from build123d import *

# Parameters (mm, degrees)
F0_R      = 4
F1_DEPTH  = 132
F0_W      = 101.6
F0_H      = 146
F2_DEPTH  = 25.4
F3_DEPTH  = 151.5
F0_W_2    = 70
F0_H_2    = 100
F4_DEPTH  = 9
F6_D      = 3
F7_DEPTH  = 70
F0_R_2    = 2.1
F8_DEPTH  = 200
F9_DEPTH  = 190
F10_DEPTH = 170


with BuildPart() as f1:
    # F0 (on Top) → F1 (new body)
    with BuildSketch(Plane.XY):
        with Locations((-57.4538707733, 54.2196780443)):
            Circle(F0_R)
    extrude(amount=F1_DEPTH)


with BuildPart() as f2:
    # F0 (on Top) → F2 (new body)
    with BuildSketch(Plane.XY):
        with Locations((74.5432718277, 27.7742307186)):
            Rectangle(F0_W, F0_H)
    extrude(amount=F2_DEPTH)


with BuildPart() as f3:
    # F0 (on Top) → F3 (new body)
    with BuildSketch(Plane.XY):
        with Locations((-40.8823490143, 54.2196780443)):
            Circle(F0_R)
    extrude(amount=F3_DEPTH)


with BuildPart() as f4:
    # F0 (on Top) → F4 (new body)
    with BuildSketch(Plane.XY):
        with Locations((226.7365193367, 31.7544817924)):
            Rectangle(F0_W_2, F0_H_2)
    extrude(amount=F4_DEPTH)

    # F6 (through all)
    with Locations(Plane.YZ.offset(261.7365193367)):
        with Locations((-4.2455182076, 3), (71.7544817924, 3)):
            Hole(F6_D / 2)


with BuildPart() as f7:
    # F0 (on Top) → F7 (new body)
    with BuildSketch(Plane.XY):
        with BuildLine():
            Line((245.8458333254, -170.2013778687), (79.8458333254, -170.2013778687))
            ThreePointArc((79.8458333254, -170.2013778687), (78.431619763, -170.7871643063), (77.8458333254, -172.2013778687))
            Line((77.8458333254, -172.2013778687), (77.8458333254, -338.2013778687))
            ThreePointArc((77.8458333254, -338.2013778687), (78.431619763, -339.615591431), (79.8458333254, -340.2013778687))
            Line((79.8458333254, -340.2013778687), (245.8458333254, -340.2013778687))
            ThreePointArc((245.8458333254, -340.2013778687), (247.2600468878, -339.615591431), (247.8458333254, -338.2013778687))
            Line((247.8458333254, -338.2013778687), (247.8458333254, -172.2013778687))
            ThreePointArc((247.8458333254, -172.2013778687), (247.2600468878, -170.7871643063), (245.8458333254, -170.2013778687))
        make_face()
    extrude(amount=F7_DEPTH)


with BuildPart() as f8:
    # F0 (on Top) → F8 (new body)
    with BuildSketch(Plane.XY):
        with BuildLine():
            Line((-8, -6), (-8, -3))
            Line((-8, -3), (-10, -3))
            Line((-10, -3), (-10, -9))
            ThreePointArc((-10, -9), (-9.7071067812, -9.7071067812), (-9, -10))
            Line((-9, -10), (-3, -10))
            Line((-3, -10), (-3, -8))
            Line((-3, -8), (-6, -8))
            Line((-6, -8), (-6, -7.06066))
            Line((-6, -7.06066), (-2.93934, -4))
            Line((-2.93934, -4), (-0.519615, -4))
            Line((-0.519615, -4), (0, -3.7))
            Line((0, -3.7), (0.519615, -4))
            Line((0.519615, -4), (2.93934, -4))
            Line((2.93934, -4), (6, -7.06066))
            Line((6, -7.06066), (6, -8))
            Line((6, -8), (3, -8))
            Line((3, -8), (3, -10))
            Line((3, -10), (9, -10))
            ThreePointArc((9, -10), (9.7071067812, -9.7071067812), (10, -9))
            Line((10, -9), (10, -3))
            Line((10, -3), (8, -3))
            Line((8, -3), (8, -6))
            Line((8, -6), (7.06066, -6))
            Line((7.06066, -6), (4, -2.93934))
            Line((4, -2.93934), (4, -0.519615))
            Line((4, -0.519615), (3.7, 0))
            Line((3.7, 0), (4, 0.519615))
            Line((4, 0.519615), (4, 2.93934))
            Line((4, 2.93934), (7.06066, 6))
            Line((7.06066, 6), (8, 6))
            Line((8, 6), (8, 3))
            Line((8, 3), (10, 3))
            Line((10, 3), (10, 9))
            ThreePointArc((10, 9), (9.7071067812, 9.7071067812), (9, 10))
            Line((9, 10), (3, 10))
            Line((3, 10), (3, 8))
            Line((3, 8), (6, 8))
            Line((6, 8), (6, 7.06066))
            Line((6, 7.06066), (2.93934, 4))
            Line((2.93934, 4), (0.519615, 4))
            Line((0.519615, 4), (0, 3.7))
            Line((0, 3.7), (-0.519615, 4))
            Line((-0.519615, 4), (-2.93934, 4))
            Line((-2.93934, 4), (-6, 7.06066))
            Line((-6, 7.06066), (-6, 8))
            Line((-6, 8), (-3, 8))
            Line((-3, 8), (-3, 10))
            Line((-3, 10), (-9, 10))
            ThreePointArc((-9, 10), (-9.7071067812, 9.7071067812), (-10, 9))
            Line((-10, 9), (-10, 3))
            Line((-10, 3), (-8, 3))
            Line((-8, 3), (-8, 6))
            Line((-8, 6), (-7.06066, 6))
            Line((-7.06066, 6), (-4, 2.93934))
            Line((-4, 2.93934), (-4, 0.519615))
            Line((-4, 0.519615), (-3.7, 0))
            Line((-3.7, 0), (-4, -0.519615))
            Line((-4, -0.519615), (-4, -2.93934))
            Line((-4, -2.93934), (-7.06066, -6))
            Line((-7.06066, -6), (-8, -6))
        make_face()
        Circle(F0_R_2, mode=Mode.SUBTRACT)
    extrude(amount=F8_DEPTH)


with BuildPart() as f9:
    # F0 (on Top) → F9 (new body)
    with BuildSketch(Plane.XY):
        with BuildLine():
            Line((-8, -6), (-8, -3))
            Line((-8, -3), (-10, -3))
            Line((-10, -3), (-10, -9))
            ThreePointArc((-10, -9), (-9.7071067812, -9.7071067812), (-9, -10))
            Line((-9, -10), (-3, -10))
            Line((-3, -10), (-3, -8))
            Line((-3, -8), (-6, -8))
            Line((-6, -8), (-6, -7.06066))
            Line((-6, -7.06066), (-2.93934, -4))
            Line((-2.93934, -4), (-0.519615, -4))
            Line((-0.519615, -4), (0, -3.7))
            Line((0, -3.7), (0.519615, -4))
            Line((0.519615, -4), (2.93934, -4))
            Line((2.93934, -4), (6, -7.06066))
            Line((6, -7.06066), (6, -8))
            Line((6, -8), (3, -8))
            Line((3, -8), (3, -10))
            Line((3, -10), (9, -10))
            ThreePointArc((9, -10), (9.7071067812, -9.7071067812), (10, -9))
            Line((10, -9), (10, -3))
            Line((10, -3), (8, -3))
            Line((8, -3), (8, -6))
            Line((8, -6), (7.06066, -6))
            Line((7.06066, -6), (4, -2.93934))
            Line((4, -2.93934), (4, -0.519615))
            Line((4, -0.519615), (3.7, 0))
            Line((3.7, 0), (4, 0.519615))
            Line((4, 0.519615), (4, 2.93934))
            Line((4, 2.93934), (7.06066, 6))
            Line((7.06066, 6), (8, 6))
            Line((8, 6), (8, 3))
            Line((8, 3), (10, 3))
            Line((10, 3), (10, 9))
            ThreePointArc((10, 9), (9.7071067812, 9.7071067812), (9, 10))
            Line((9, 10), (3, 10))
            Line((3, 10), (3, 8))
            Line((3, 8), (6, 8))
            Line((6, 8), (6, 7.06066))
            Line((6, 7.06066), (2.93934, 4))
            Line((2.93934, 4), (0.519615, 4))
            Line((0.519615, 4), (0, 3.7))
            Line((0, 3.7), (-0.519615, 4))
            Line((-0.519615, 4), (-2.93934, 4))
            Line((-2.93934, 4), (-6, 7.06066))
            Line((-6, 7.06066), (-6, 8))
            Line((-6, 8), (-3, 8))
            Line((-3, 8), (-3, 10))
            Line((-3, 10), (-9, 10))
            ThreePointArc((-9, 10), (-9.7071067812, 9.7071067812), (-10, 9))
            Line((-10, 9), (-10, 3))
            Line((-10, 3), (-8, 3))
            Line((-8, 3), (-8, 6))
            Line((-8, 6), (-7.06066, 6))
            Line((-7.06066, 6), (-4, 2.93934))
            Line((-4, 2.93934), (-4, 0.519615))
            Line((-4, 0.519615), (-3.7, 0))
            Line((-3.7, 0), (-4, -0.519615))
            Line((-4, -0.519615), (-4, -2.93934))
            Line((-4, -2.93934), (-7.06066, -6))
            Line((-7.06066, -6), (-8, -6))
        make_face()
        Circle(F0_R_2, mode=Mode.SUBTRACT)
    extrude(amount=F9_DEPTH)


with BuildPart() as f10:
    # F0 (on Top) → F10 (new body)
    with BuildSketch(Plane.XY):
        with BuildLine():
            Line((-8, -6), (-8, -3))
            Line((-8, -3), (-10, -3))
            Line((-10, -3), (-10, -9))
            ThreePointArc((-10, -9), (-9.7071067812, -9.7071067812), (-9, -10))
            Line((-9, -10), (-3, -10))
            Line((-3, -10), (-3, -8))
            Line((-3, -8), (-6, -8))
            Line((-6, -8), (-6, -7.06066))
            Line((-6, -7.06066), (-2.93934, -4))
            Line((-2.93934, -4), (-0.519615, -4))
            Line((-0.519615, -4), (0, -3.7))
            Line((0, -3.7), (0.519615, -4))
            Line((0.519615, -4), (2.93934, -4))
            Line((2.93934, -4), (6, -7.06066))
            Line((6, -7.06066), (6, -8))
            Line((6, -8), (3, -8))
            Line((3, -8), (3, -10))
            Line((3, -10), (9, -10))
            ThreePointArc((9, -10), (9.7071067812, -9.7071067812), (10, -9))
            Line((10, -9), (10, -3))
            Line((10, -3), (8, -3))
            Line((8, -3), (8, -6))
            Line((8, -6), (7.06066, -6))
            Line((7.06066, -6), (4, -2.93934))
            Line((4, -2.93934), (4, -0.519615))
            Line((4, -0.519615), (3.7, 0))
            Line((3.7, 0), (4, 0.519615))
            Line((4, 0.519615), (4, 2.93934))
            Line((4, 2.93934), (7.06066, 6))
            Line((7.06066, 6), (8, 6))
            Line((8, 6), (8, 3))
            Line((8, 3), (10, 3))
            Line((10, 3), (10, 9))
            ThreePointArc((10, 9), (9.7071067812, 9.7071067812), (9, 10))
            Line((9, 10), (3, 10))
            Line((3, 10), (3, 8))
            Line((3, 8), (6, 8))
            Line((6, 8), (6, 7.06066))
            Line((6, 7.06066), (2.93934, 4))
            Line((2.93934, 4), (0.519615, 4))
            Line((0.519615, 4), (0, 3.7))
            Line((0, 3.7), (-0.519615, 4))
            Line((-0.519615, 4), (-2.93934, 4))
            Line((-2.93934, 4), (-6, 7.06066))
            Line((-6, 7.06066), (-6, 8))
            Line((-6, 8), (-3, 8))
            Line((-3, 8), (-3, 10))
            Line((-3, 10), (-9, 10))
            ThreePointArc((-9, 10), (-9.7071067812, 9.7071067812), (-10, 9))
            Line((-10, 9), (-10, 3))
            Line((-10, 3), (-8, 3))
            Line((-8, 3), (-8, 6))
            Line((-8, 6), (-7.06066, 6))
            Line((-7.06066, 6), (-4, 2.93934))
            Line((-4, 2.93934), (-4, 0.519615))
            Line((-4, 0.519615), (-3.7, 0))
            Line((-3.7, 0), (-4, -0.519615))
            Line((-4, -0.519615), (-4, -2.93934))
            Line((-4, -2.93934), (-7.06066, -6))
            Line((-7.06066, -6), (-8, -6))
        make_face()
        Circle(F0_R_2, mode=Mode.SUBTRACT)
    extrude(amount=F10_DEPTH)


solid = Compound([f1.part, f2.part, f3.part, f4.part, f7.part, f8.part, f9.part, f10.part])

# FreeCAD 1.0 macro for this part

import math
import FreeCAD as App
import Part
import Sketcher

V = App.Vector
Q = App.Units.Quantity

doc = App.newDocument("Part")
body = doc.addObject("PartDesign::Body", "Body")

sketch1 = body.newObject("Sketcher::SketchObject", "Sketch")
sketch1.AttachmentSupport = (doc.getObject("XY_Plane"), [""])
sketch1.MapMode = "FlatFace"
sketch1.addGeometry(Part.Circle(V(-57.453871, 54.219678, 0), V(0, 0, 1), 4), False)
sketch1.addConstraint([
    Sketcher.Constraint("Diameter", 0, 8.0),
    Sketcher.Constraint("DistanceX", 0, 3, -1, 1, 57.453871),
    Sketcher.Constraint("DistanceY", -1, 1, 0, 3, 54.219678),
])
pad1 = body.newObject("PartDesign::Pad", "Pad")
pad1.Profile = sketch1
pad1.Length = 132
body2 = doc.addObject("PartDesign::Body", "Body001")

sketch2 = body2.newObject("Sketcher::SketchObject", "Sketch001")
sketch2.AttachmentSupport = (doc.getObject("XY_Plane001"), [""])
sketch2.MapMode = "FlatFace"
sketch2.addGeometry([
    Part.LineSegment(V(23.743272, 100.774231, 0), V(23.743272, -45.225769, 0)),
    Part.LineSegment(V(23.743272, -45.225769, 0), V(125.343272, -45.225769, 0)),
    Part.LineSegment(V(125.343272, -45.225769, 0), V(125.343272, 100.774231, 0)),
    Part.LineSegment(V(125.343272, 100.774231, 0), V(23.743272, 100.774231, 0)),
], False)
sketch2.addConstraint([
    Sketcher.Constraint("Coincident", 0, 2, 1, 1),
    Sketcher.Constraint("Coincident", 1, 2, 2, 1),
    Sketcher.Constraint("Coincident", 2, 2, 3, 1),
    Sketcher.Constraint("Coincident", 3, 2, 0, 1),
    Sketcher.Constraint("Vertical", 0),
    Sketcher.Constraint("Horizontal", 1),
    Sketcher.Constraint("Vertical", 2),
    Sketcher.Constraint("Horizontal", 3),
    Sketcher.Constraint("DistanceY", 0, 2, 0, 1, 146.0),
    Sketcher.Constraint("DistanceX", 1, 1, 1, 2, 101.6),
    Sketcher.Constraint("DistanceX", -1, 1, 0, 2, 23.743272),
    Sketcher.Constraint("DistanceY", 0, 2, -1, 1, 45.225769),
])
pad2 = body2.newObject("PartDesign::Pad", "Pad001")
pad2.Profile = sketch2
pad2.Length = 25.4
body3 = doc.addObject("PartDesign::Body", "Body002")

sketch3 = body3.newObject("Sketcher::SketchObject", "Sketch002")
sketch3.AttachmentSupport = (doc.getObject("XY_Plane002"), [""])
sketch3.MapMode = "FlatFace"
sketch3.addGeometry(Part.Circle(V(-40.882349, 54.219678, 0), V(0, 0, 1), 4), False)
sketch3.addConstraint([
    Sketcher.Constraint("Diameter", 0, 8.0),
    Sketcher.Constraint("DistanceX", 0, 3, -1, 1, 40.882349),
    Sketcher.Constraint("DistanceY", -1, 1, 0, 3, 54.219678),
])
pad3 = body3.newObject("PartDesign::Pad", "Pad002")
pad3.Profile = sketch3
pad3.Length = 151.5
body4 = doc.addObject("PartDesign::Body", "Body003")

sketch4 = body4.newObject("Sketcher::SketchObject", "Sketch003")
sketch4.AttachmentSupport = (doc.getObject("XY_Plane003"), [""])
sketch4.MapMode = "FlatFace"
sketch4.addGeometry([
    Part.LineSegment(V(191.736519, 81.754482, 0), V(191.736519, -18.245518, 0)),
    Part.LineSegment(V(191.736519, -18.245518, 0), V(261.736519, -18.245518, 0)),
    Part.LineSegment(V(261.736519, -18.245518, 0), V(261.736519, 81.754482, 0)),
    Part.LineSegment(V(261.736519, 81.754482, 0), V(191.736519, 81.754482, 0)),
], False)
sketch4.addConstraint([
    Sketcher.Constraint("Coincident", 0, 2, 1, 1),
    Sketcher.Constraint("Coincident", 1, 2, 2, 1),
    Sketcher.Constraint("Coincident", 2, 2, 3, 1),
    Sketcher.Constraint("Coincident", 3, 2, 0, 1),
    Sketcher.Constraint("Vertical", 0),
    Sketcher.Constraint("Horizontal", 1),
    Sketcher.Constraint("Vertical", 2),
    Sketcher.Constraint("Horizontal", 3),
    Sketcher.Constraint("DistanceX", 1, 1, 1, 2, 70.0),
    Sketcher.Constraint("DistanceY", 0, 2, 0, 1, 100.0),
    Sketcher.Constraint("DistanceX", -1, 1, 0, 2, 191.736519),
    Sketcher.Constraint("DistanceY", 0, 2, -1, 1, 18.245518),
])
pad4 = body4.newObject("PartDesign::Pad", "Pad003")
pad4.Profile = sketch4
pad4.Length = 9

sketch5 = body4.newObject("Sketcher::SketchObject", "Sketch004")
sketch5.AttachmentSupport = (doc.getObject("YZ_Plane003"), [""])
sketch5.MapMode = "FlatFace"
sketch5.AttachmentOffset = App.Placement(V(0, 0, 261.736519), App.Rotation())
sketch5.addGeometry([
    Part.Circle(V(-4.245518, 3, 0), V(0, 0, 1), 1.5),
    Part.Circle(V(71.754482, 3, 0), V(0, 0, 1), 1.5),
], False)
sketch5.addConstraint([
    Sketcher.Constraint("Equal", 0, 1),
    Sketcher.Constraint("Horizontal", 0, 3, 1, 3),
    Sketcher.Constraint("Diameter", 0, 3.0),
    Sketcher.Constraint("DistanceY", -1, 1, 0, 3, 3.0),
    Sketcher.Constraint("DistanceX", 0, 3, 1, 3, 76.0),
    Sketcher.Constraint("DistanceX", 0, 3, -1, 1, 4.245518),
])
doc.recompute()
hole = body4.newObject("PartDesign::Hole", "Hole")
hole.Profile = sketch5
hole.ThreadType = "None"
hole.Diameter = 3
hole.DepthType = "ThroughAll"
body5 = doc.addObject("PartDesign::Body", "Body004")

sketch6 = body5.newObject("Sketcher::SketchObject", "Sketch005")
sketch6.AttachmentSupport = (doc.getObject("XY_Plane004"), [""])
sketch6.MapMode = "FlatFace"
sketch6.addGeometry([
    Part.LineSegment(V(245.845833, -170.201378, 0), V(79.845833, -170.201378, 0)),
    Part.ArcOfCircle(Part.Circle(V(79.845833, -172.201378, 0), V(0, 0, 1), 2), math.radians(90), math.radians(180)),
    Part.LineSegment(V(77.845833, -172.201378, 0), V(77.845833, -338.201378, 0)),
    Part.ArcOfCircle(Part.Circle(V(79.845833, -338.201378, 0), V(0, 0, 1), 2), math.radians(180), math.radians(270)),
    Part.LineSegment(V(79.845833, -340.201378, 0), V(245.845833, -340.201378, 0)),
    Part.ArcOfCircle(Part.Circle(V(245.845833, -338.201378, 0), V(0, 0, 1), 2), math.radians(-90), math.radians(0)),
    Part.LineSegment(V(247.845833, -338.201378, 0), V(247.845833, -172.201378, 0)),
    Part.ArcOfCircle(Part.Circle(V(245.845833, -172.201378, 0), V(0, 0, 1), 2), math.radians(0), math.radians(90)),
], False)
sketch6.addConstraint([
    Sketcher.Constraint("Tangent", 0, 2, 1, 1),
    Sketcher.Constraint("Tangent", 1, 2, 2, 1),
    Sketcher.Constraint("Tangent", 2, 2, 3, 1),
    Sketcher.Constraint("Tangent", 3, 2, 4, 1),
    Sketcher.Constraint("Tangent", 4, 2, 5, 1),
    Sketcher.Constraint("Tangent", 5, 2, 6, 1),
    Sketcher.Constraint("Tangent", 6, 2, 7, 1),
    Sketcher.Constraint("Tangent", 7, 2, 0, 1),
    Sketcher.Constraint("Horizontal", 0),
    Sketcher.Constraint("Vertical", 2),
    Sketcher.Constraint("Horizontal", 4),
    Sketcher.Constraint("Vertical", 6),
    Sketcher.Constraint("Equal", 1, 3),
    Sketcher.Constraint("Equal", 3, 5),
    Sketcher.Constraint("Equal", 5, 7),
    Sketcher.Constraint("Equal", 4, 2),
    Sketcher.Constraint("Radius", 1, 2.0),
    Sketcher.Constraint("DistanceX", 0, 2, 0, 1, 166.0),
    Sketcher.Constraint("DistanceX", -1, 1, 1, 3, 79.845833),
    Sketcher.Constraint("DistanceY", 1, 3, -1, 1, 172.201378),
])
pad5 = body5.newObject("PartDesign::Pad", "Pad004")
pad5.Profile = sketch6
pad5.Length = 70
body6 = doc.addObject("PartDesign::Body", "Body005")

sketch7 = body6.newObject("Sketcher::SketchObject", "Sketch006")
sketch7.AttachmentSupport = (doc.getObject("XY_Plane005"), [""])
sketch7.MapMode = "FlatFace"
sketch7.addGeometry([
    Part.LineSegment(V(-8, -6, 0), V(-8, -3, 0)),
    Part.LineSegment(V(-8, -3, 0), V(-10, -3, 0)),
    Part.LineSegment(V(-10, -3, 0), V(-10, -9, 0)),
    Part.ArcOfCircle(Part.Circle(V(-9, -9, 0), V(0, 0, 1), 1), math.radians(180), math.radians(270)),
    Part.LineSegment(V(-9, -10, 0), V(-3, -10, 0)),
    Part.LineSegment(V(-3, -10, 0), V(-3, -8, 0)),
    Part.LineSegment(V(-3, -8, 0), V(-6, -8, 0)),
    Part.LineSegment(V(-6, -8, 0), V(-6, -7.06066, 0)),
    Part.LineSegment(V(-6, -7.06066, 0), V(-2.93934, -4, 0)),
    Part.LineSegment(V(-2.93934, -4, 0), V(-0.519615, -4, 0)),
    Part.LineSegment(V(-0.519615, -4, 0), V(0, -3.7, 0)),
    Part.LineSegment(V(0, -3.7, 0), V(0.519615, -4, 0)),
    Part.LineSegment(V(0.519615, -4, 0), V(2.93934, -4, 0)),
    Part.LineSegment(V(2.93934, -4, 0), V(6, -7.06066, 0)),
    Part.LineSegment(V(6, -7.06066, 0), V(6, -8, 0)),
    Part.LineSegment(V(6, -8, 0), V(3, -8, 0)),
    Part.LineSegment(V(3, -8, 0), V(3, -10, 0)),
    Part.LineSegment(V(3, -10, 0), V(9, -10, 0)),
    Part.ArcOfCircle(Part.Circle(V(9, -9, 0), V(0, 0, 1), 1), math.radians(-90), math.radians(0)),
    Part.LineSegment(V(10, -9, 0), V(10, -3, 0)),
    Part.LineSegment(V(10, -3, 0), V(8, -3, 0)),
    Part.LineSegment(V(8, -3, 0), V(8, -6, 0)),
    Part.LineSegment(V(8, -6, 0), V(7.06066, -6, 0)),
    Part.LineSegment(V(7.06066, -6, 0), V(4, -2.93934, 0)),
    Part.LineSegment(V(4, -2.93934, 0), V(4, -0.519615, 0)),
    Part.LineSegment(V(4, -0.519615, 0), V(3.7, 0, 0)),
    Part.LineSegment(V(3.7, 0, 0), V(4, 0.519615, 0)),
    Part.LineSegment(V(4, 0.519615, 0), V(4, 2.93934, 0)),
    Part.LineSegment(V(4, 2.93934, 0), V(7.06066, 6, 0)),
    Part.LineSegment(V(7.06066, 6, 0), V(8, 6, 0)),
    Part.LineSegment(V(8, 6, 0), V(8, 3, 0)),
    Part.LineSegment(V(8, 3, 0), V(10, 3, 0)),
    Part.LineSegment(V(10, 3, 0), V(10, 9, 0)),
    Part.ArcOfCircle(Part.Circle(V(9, 9, 0), V(0, 0, 1), 1), math.radians(0), math.radians(90)),
    Part.LineSegment(V(9, 10, 0), V(3, 10, 0)),
    Part.LineSegment(V(3, 10, 0), V(3, 8, 0)),
    Part.LineSegment(V(3, 8, 0), V(6, 8, 0)),
    Part.LineSegment(V(6, 8, 0), V(6, 7.06066, 0)),
    Part.LineSegment(V(6, 7.06066, 0), V(2.93934, 4, 0)),
    Part.LineSegment(V(2.93934, 4, 0), V(0.519615, 4, 0)),
    Part.LineSegment(V(0.519615, 4, 0), V(0, 3.7, 0)),
    Part.LineSegment(V(0, 3.7, 0), V(-0.519615, 4, 0)),
    Part.LineSegment(V(-0.519615, 4, 0), V(-2.93934, 4, 0)),
    Part.LineSegment(V(-2.93934, 4, 0), V(-6, 7.06066, 0)),
    Part.LineSegment(V(-6, 7.06066, 0), V(-6, 8, 0)),
    Part.LineSegment(V(-6, 8, 0), V(-3, 8, 0)),
    Part.LineSegment(V(-3, 8, 0), V(-3, 10, 0)),
    Part.LineSegment(V(-3, 10, 0), V(-9, 10, 0)),
    Part.ArcOfCircle(Part.Circle(V(-9, 9, 0), V(0, 0, 1), 1), math.radians(90), math.radians(180)),
    Part.LineSegment(V(-10, 9, 0), V(-10, 3, 0)),
    Part.LineSegment(V(-10, 3, 0), V(-8, 3, 0)),
    Part.LineSegment(V(-8, 3, 0), V(-8, 6, 0)),
    Part.LineSegment(V(-8, 6, 0), V(-7.06066, 6, 0)),
    Part.LineSegment(V(-7.06066, 6, 0), V(-4, 2.93934, 0)),
    Part.LineSegment(V(-4, 2.93934, 0), V(-4, 0.519615, 0)),
    Part.LineSegment(V(-4, 0.519615, 0), V(-3.7, 0, 0)),
    Part.LineSegment(V(-3.7, 0, 0), V(-4, -0.519615, 0)),
    Part.LineSegment(V(-4, -0.519615, 0), V(-4, -2.93934, 0)),
    Part.LineSegment(V(-4, -2.93934, 0), V(-7.06066, -6, 0)),
    Part.LineSegment(V(-7.06066, -6, 0), V(-8, -6, 0)),
    Part.Circle(V(0, 0, 0), V(0, 0, 1), 2.1),
], False)
sketch7.addConstraint([
    Sketcher.Constraint("Coincident", 0, 2, 1, 1),
    Sketcher.Constraint("Coincident", 1, 2, 2, 1),
    Sketcher.Constraint("Tangent", 2, 2, 3, 1),
    Sketcher.Constraint("Tangent", 3, 2, 4, 1),
    Sketcher.Constraint("Coincident", 4, 2, 5, 1),
    Sketcher.Constraint("Coincident", 5, 2, 6, 1),
    Sketcher.Constraint("Coincident", 6, 2, 7, 1),
    Sketcher.Constraint("Coincident", 7, 2, 8, 1),
    Sketcher.Constraint("Coincident", 8, 2, 9, 1),
    Sketcher.Constraint("Coincident", 9, 2, 10, 1),
    Sketcher.Constraint("Coincident", 10, 2, 11, 1),
    Sketcher.Constraint("Coincident", 11, 2, 12, 1),
    Sketcher.Constraint("Coincident", 12, 2, 13, 1),
    Sketcher.Constraint("Coincident", 13, 2, 14, 1),
    Sketcher.Constraint("Coincident", 14, 2, 15, 1),
    Sketcher.Constraint("Coincident", 15, 2, 16, 1),
    Sketcher.Constraint("Coincident", 16, 2, 17, 1),
    Sketcher.Constraint("Tangent", 17, 2, 18, 1),
    Sketcher.Constraint("Tangent", 18, 2, 19, 1),
    Sketcher.Constraint("Coincident", 19, 2, 20, 1),
    Sketcher.Constraint("Coincident", 20, 2, 21, 1),
    Sketcher.Constraint("Coincident", 21, 2, 22, 1),
    Sketcher.Constraint("Coincident", 22, 2, 23, 1),
    Sketcher.Constraint("Coincident", 23, 2, 24, 1),
    Sketcher.Constraint("Coincident", 24, 2, 25, 1),
    Sketcher.Constraint("Coincident", 25, 2, 26, 1),
    Sketcher.Constraint("Coincident", 26, 2, 27, 1),
    Sketcher.Constraint("Coincident", 27, 2, 28, 1),
    Sketcher.Constraint("Coincident", 28, 2, 29, 1),
    Sketcher.Constraint("Coincident", 29, 2, 30, 1),
    Sketcher.Constraint("Coincident", 30, 2, 31, 1),
    Sketcher.Constraint("Coincident", 31, 2, 32, 1),
    Sketcher.Constraint("Tangent", 32, 2, 33, 1),
    Sketcher.Constraint("Tangent", 33, 2, 34, 1),
    Sketcher.Constraint("Coincident", 34, 2, 35, 1),
    Sketcher.Constraint("Coincident", 35, 2, 36, 1),
    Sketcher.Constraint("Coincident", 36, 2, 37, 1),
    Sketcher.Constraint("Coincident", 37, 2, 38, 1),
    Sketcher.Constraint("Coincident", 38, 2, 39, 1),
    Sketcher.Constraint("Coincident", 39, 2, 40, 1),
    Sketcher.Constraint("Coincident", 40, 2, 41, 1),
    Sketcher.Constraint("Coincident", 41, 2, 42, 1),
    Sketcher.Constraint("Coincident", 42, 2, 43, 1),
    Sketcher.Constraint("Coincident", 43, 2, 44, 1),
    Sketcher.Constraint("Coincident", 44, 2, 45, 1),
    Sketcher.Constraint("Coincident", 45, 2, 46, 1),
    Sketcher.Constraint("Coincident", 46, 2, 47, 1),
    Sketcher.Constraint("Tangent", 47, 2, 48, 1),
    Sketcher.Constraint("Tangent", 48, 2, 49, 1),
    Sketcher.Constraint("Coincident", 49, 2, 50, 1),
    Sketcher.Constraint("Coincident", 50, 2, 51, 1),
    Sketcher.Constraint("Coincident", 51, 2, 52, 1),
    Sketcher.Constraint("Coincident", 52, 2, 53, 1),
    Sketcher.Constraint("Coincident", 53, 2, 54, 1),
    Sketcher.Constraint("Coincident", 54, 2, 55, 1),
    Sketcher.Constraint("Coincident", 55, 2, 56, 1),
    Sketcher.Constraint("Coincident", 56, 2, 57, 1),
    Sketcher.Constraint("Coincident", 57, 2, 58, 1),
    Sketcher.Constraint("Coincident", 58, 2, 59, 1),
    Sketcher.Constraint("Coincident", 59, 2, 0, 1),
    Sketcher.Constraint("Vertical", 0),
    Sketcher.Constraint("Horizontal", 1),
    Sketcher.Constraint("Vertical", 2),
    Sketcher.Constraint("Horizontal", 4),
    Sketcher.Constraint("Vertical", 5),
    Sketcher.Constraint("Horizontal", 6),
    Sketcher.Constraint("Vertical", 7),
    Sketcher.Constraint("Horizontal", 9),
    Sketcher.Constraint("Horizontal", 12),
    Sketcher.Constraint("Vertical", 14),
    Sketcher.Constraint("Horizontal", 15),
    Sketcher.Constraint("Vertical", 16),
    Sketcher.Constraint("Horizontal", 17),
    Sketcher.Constraint("Vertical", 19),
    Sketcher.Constraint("Horizontal", 20),
    Sketcher.Constraint("Vertical", 21),
    Sketcher.Constraint("Horizontal", 22),
    Sketcher.Constraint("Vertical", 24),
    Sketcher.Constraint("Vertical", 27),
    Sketcher.Constraint("Horizontal", 29),
    Sketcher.Constraint("Vertical", 30),
    Sketcher.Constraint("Horizontal", 31),
    Sketcher.Constraint("Vertical", 32),
    Sketcher.Constraint("Horizontal", 34),
    Sketcher.Constraint("Vertical", 35),
    Sketcher.Constraint("Horizontal", 36),
    Sketcher.Constraint("Vertical", 37),
    Sketcher.Constraint("Horizontal", 39),
    Sketcher.Constraint("Horizontal", 42),
    Sketcher.Constraint("Vertical", 44),
    Sketcher.Constraint("Horizontal", 45),
    Sketcher.Constraint("Vertical", 46),
    Sketcher.Constraint("Horizontal", 47),
    Sketcher.Constraint("Vertical", 49),
    Sketcher.Constraint("Horizontal", 50),
    Sketcher.Constraint("Vertical", 51),
    Sketcher.Constraint("Horizontal", 52),
    Sketcher.Constraint("Vertical", 54),
    Sketcher.Constraint("Vertical", 57),
    Sketcher.Constraint("Horizontal", 59),
    Sketcher.Constraint("Coincident", 60, 3, -1, 1),
    Sketcher.Constraint("Equal", 3, 18),
    Sketcher.Constraint("Equal", 18, 33),
    Sketcher.Constraint("Equal", 33, 48),
    Sketcher.Constraint("Symmetric", 3, 3, 33, 3, -1, 1),
    Sketcher.Constraint("Symmetric", 18, 3, 48, 3, -1, 1),
    Sketcher.Constraint("Symmetric", 0, 2, 30, 2, -1, 1),
    Sketcher.Constraint("Symmetric", 5, 2, 35, 2, -1, 1),
    Sketcher.Constraint("Symmetric", 7, 2, 37, 2, -1, 1),
    Sketcher.Constraint("Symmetric", 8, 2, 38, 2, -1, 1),
    Sketcher.Constraint("Symmetric", 10, 2, 40, 2, -1, 1),
    Sketcher.Constraint("Symmetric", 11, 2, 41, 2, -1, 1),
    Sketcher.Constraint("Symmetric", 13, 2, 43, 2, -1, 1),
    Sketcher.Constraint("Symmetric", 15, 2, 45, 2, -1, 1),
    Sketcher.Constraint("Symmetric", 20, 2, 50, 2, -1, 1),
    Sketcher.Constraint("Symmetric", 22, 2, 52, 2, -1, 1),
    Sketcher.Constraint("Symmetric", 23, 2, 53, 2, -1, 1),
    Sketcher.Constraint("Symmetric", 25, 2, 55, 2, -1, 1),
    Sketcher.Constraint("Symmetric", 26, 2, 56, 2, -1, 1),
    Sketcher.Constraint("Symmetric", 28, 2, 58, 2, -1, 1),
    Sketcher.Constraint("Symmetric", 3, 3, 18, 3, -2),
    Sketcher.Constraint("Symmetric", 9, 2, 11, 2, -2),
    Sketcher.Constraint("Symmetric", 7, 2, 13, 2, -2),
    Sketcher.Constraint("Symmetric", 5, 2, 15, 2, -2),
    Sketcher.Constraint("Symmetric", 0, 2, 20, 2, -2),
    Sketcher.Constraint("Symmetric", 28, 2, 52, 2, -2),
    Sketcher.Constraint("Symmetric", 27, 2, 53, 2, -2),
    Sketcher.Constraint("PointOnObject", 10, 2, -2),
    Sketcher.Constraint("PointOnObject", 25, 2, -1),
    Sketcher.Constraint("Perpendicular", 8, 13),
    Sketcher.Constraint("Parallel", 13, 23),
    Sketcher.Constraint("Perpendicular", 10, 25),
    Sketcher.Constraint("Perpendicular", 11, 26),
    Sketcher.Constraint("Perpendicular", 23, 28),
    Sketcher.Constraint("Perpendicular", 25, 40),
    Sketcher.Constraint("Perpendicular", 38, 43),
    Sketcher.Constraint("Perpendicular", 40, 55),
    Sketcher.Constraint("Perpendicular", 53, 58),
    Sketcher.Constraint("Equal", 45, 0),
    Sketcher.Constraint("Equal", 47, 2),
    Sketcher.Constraint("Equal", 50, 5),
    Sketcher.Constraint("Equal", 59, 7),
    Sketcher.Constraint("Equal", 42, 24),
    Sketcher.Constraint("Equal", 13, 23),
    Sketcher.Constraint("Equal", 11, 25),
    Sketcher.Constraint("Radius", 3, 1.0),
    Sketcher.Constraint("Diameter", 60, 4.2),
    Sketcher.Constraint("DistanceX", 1, 2, 1, 1, 2.0),
    Sketcher.Constraint("DistanceX", 4, 1, 4, 2, 6.0),
    Sketcher.Constraint("DistanceX", 6, 2, 6, 1, 3.0),
    Sketcher.Constraint("Angle", 10, Q("30.000012 deg")),
    Sketcher.Constraint("DistanceX", 3, 3, -1, 1, 9.0),
    Sketcher.Constraint("DistanceY", 8, 2, -1, 1, 4.0),
    Sketcher.Constraint("Distance", 10, 0.6),
    Sketcher.Constraint("DistanceX", 22, 2, 22, 1, 0.93934),
])
pad6 = body6.newObject("PartDesign::Pad", "Pad005")
pad6.Profile = sketch7
pad6.Length = 200
body7 = doc.addObject("PartDesign::Body", "Body006")

sketch8 = body7.newObject("Sketcher::SketchObject", "Sketch007")
sketch8.AttachmentSupport = (doc.getObject("XY_Plane006"), [""])
sketch8.MapMode = "FlatFace"
sketch8.addGeometry([
    Part.LineSegment(V(-8, -6, 0), V(-8, -3, 0)),
    Part.LineSegment(V(-8, -3, 0), V(-10, -3, 0)),
    Part.LineSegment(V(-10, -3, 0), V(-10, -9, 0)),
    Part.ArcOfCircle(Part.Circle(V(-9, -9, 0), V(0, 0, 1), 1), math.radians(180), math.radians(270)),
    Part.LineSegment(V(-9, -10, 0), V(-3, -10, 0)),
    Part.LineSegment(V(-3, -10, 0), V(-3, -8, 0)),
    Part.LineSegment(V(-3, -8, 0), V(-6, -8, 0)),
    Part.LineSegment(V(-6, -8, 0), V(-6, -7.06066, 0)),
    Part.LineSegment(V(-6, -7.06066, 0), V(-2.93934, -4, 0)),
    Part.LineSegment(V(-2.93934, -4, 0), V(-0.519615, -4, 0)),
    Part.LineSegment(V(-0.519615, -4, 0), V(0, -3.7, 0)),
    Part.LineSegment(V(0, -3.7, 0), V(0.519615, -4, 0)),
    Part.LineSegment(V(0.519615, -4, 0), V(2.93934, -4, 0)),
    Part.LineSegment(V(2.93934, -4, 0), V(6, -7.06066, 0)),
    Part.LineSegment(V(6, -7.06066, 0), V(6, -8, 0)),
    Part.LineSegment(V(6, -8, 0), V(3, -8, 0)),
    Part.LineSegment(V(3, -8, 0), V(3, -10, 0)),
    Part.LineSegment(V(3, -10, 0), V(9, -10, 0)),
    Part.ArcOfCircle(Part.Circle(V(9, -9, 0), V(0, 0, 1), 1), math.radians(-90), math.radians(0)),
    Part.LineSegment(V(10, -9, 0), V(10, -3, 0)),
    Part.LineSegment(V(10, -3, 0), V(8, -3, 0)),
    Part.LineSegment(V(8, -3, 0), V(8, -6, 0)),
    Part.LineSegment(V(8, -6, 0), V(7.06066, -6, 0)),
    Part.LineSegment(V(7.06066, -6, 0), V(4, -2.93934, 0)),
    Part.LineSegment(V(4, -2.93934, 0), V(4, -0.519615, 0)),
    Part.LineSegment(V(4, -0.519615, 0), V(3.7, 0, 0)),
    Part.LineSegment(V(3.7, 0, 0), V(4, 0.519615, 0)),
    Part.LineSegment(V(4, 0.519615, 0), V(4, 2.93934, 0)),
    Part.LineSegment(V(4, 2.93934, 0), V(7.06066, 6, 0)),
    Part.LineSegment(V(7.06066, 6, 0), V(8, 6, 0)),
    Part.LineSegment(V(8, 6, 0), V(8, 3, 0)),
    Part.LineSegment(V(8, 3, 0), V(10, 3, 0)),
    Part.LineSegment(V(10, 3, 0), V(10, 9, 0)),
    Part.ArcOfCircle(Part.Circle(V(9, 9, 0), V(0, 0, 1), 1), math.radians(0), math.radians(90)),
    Part.LineSegment(V(9, 10, 0), V(3, 10, 0)),
    Part.LineSegment(V(3, 10, 0), V(3, 8, 0)),
    Part.LineSegment(V(3, 8, 0), V(6, 8, 0)),
    Part.LineSegment(V(6, 8, 0), V(6, 7.06066, 0)),
    Part.LineSegment(V(6, 7.06066, 0), V(2.93934, 4, 0)),
    Part.LineSegment(V(2.93934, 4, 0), V(0.519615, 4, 0)),
    Part.LineSegment(V(0.519615, 4, 0), V(0, 3.7, 0)),
    Part.LineSegment(V(0, 3.7, 0), V(-0.519615, 4, 0)),
    Part.LineSegment(V(-0.519615, 4, 0), V(-2.93934, 4, 0)),
    Part.LineSegment(V(-2.93934, 4, 0), V(-6, 7.06066, 0)),
    Part.LineSegment(V(-6, 7.06066, 0), V(-6, 8, 0)),
    Part.LineSegment(V(-6, 8, 0), V(-3, 8, 0)),
    Part.LineSegment(V(-3, 8, 0), V(-3, 10, 0)),
    Part.LineSegment(V(-3, 10, 0), V(-9, 10, 0)),
    Part.ArcOfCircle(Part.Circle(V(-9, 9, 0), V(0, 0, 1), 1), math.radians(90), math.radians(180)),
    Part.LineSegment(V(-10, 9, 0), V(-10, 3, 0)),
    Part.LineSegment(V(-10, 3, 0), V(-8, 3, 0)),
    Part.LineSegment(V(-8, 3, 0), V(-8, 6, 0)),
    Part.LineSegment(V(-8, 6, 0), V(-7.06066, 6, 0)),
    Part.LineSegment(V(-7.06066, 6, 0), V(-4, 2.93934, 0)),
    Part.LineSegment(V(-4, 2.93934, 0), V(-4, 0.519615, 0)),
    Part.LineSegment(V(-4, 0.519615, 0), V(-3.7, 0, 0)),
    Part.LineSegment(V(-3.7, 0, 0), V(-4, -0.519615, 0)),
    Part.LineSegment(V(-4, -0.519615, 0), V(-4, -2.93934, 0)),
    Part.LineSegment(V(-4, -2.93934, 0), V(-7.06066, -6, 0)),
    Part.LineSegment(V(-7.06066, -6, 0), V(-8, -6, 0)),
    Part.Circle(V(0, 0, 0), V(0, 0, 1), 2.1),
], False)
sketch8.addConstraint([
    Sketcher.Constraint("Coincident", 0, 2, 1, 1),
    Sketcher.Constraint("Coincident", 1, 2, 2, 1),
    Sketcher.Constraint("Tangent", 2, 2, 3, 1),
    Sketcher.Constraint("Tangent", 3, 2, 4, 1),
    Sketcher.Constraint("Coincident", 4, 2, 5, 1),
    Sketcher.Constraint("Coincident", 5, 2, 6, 1),
    Sketcher.Constraint("Coincident", 6, 2, 7, 1),
    Sketcher.Constraint("Coincident", 7, 2, 8, 1),
    Sketcher.Constraint("Coincident", 8, 2, 9, 1),
    Sketcher.Constraint("Coincident", 9, 2, 10, 1),
    Sketcher.Constraint("Coincident", 10, 2, 11, 1),
    Sketcher.Constraint("Coincident", 11, 2, 12, 1),
    Sketcher.Constraint("Coincident", 12, 2, 13, 1),
    Sketcher.Constraint("Coincident", 13, 2, 14, 1),
    Sketcher.Constraint("Coincident", 14, 2, 15, 1),
    Sketcher.Constraint("Coincident", 15, 2, 16, 1),
    Sketcher.Constraint("Coincident", 16, 2, 17, 1),
    Sketcher.Constraint("Tangent", 17, 2, 18, 1),
    Sketcher.Constraint("Tangent", 18, 2, 19, 1),
    Sketcher.Constraint("Coincident", 19, 2, 20, 1),
    Sketcher.Constraint("Coincident", 20, 2, 21, 1),
    Sketcher.Constraint("Coincident", 21, 2, 22, 1),
    Sketcher.Constraint("Coincident", 22, 2, 23, 1),
    Sketcher.Constraint("Coincident", 23, 2, 24, 1),
    Sketcher.Constraint("Coincident", 24, 2, 25, 1),
    Sketcher.Constraint("Coincident", 25, 2, 26, 1),
    Sketcher.Constraint("Coincident", 26, 2, 27, 1),
    Sketcher.Constraint("Coincident", 27, 2, 28, 1),
    Sketcher.Constraint("Coincident", 28, 2, 29, 1),
    Sketcher.Constraint("Coincident", 29, 2, 30, 1),
    Sketcher.Constraint("Coincident", 30, 2, 31, 1),
    Sketcher.Constraint("Coincident", 31, 2, 32, 1),
    Sketcher.Constraint("Tangent", 32, 2, 33, 1),
    Sketcher.Constraint("Tangent", 33, 2, 34, 1),
    Sketcher.Constraint("Coincident", 34, 2, 35, 1),
    Sketcher.Constraint("Coincident", 35, 2, 36, 1),
    Sketcher.Constraint("Coincident", 36, 2, 37, 1),
    Sketcher.Constraint("Coincident", 37, 2, 38, 1),
    Sketcher.Constraint("Coincident", 38, 2, 39, 1),
    Sketcher.Constraint("Coincident", 39, 2, 40, 1),
    Sketcher.Constraint("Coincident", 40, 2, 41, 1),
    Sketcher.Constraint("Coincident", 41, 2, 42, 1),
    Sketcher.Constraint("Coincident", 42, 2, 43, 1),
    Sketcher.Constraint("Coincident", 43, 2, 44, 1),
    Sketcher.Constraint("Coincident", 44, 2, 45, 1),
    Sketcher.Constraint("Coincident", 45, 2, 46, 1),
    Sketcher.Constraint("Coincident", 46, 2, 47, 1),
    Sketcher.Constraint("Tangent", 47, 2, 48, 1),
    Sketcher.Constraint("Tangent", 48, 2, 49, 1),
    Sketcher.Constraint("Coincident", 49, 2, 50, 1),
    Sketcher.Constraint("Coincident", 50, 2, 51, 1),
    Sketcher.Constraint("Coincident", 51, 2, 52, 1),
    Sketcher.Constraint("Coincident", 52, 2, 53, 1),
    Sketcher.Constraint("Coincident", 53, 2, 54, 1),
    Sketcher.Constraint("Coincident", 54, 2, 55, 1),
    Sketcher.Constraint("Coincident", 55, 2, 56, 1),
    Sketcher.Constraint("Coincident", 56, 2, 57, 1),
    Sketcher.Constraint("Coincident", 57, 2, 58, 1),
    Sketcher.Constraint("Coincident", 58, 2, 59, 1),
    Sketcher.Constraint("Coincident", 59, 2, 0, 1),
    Sketcher.Constraint("Vertical", 0),
    Sketcher.Constraint("Horizontal", 1),
    Sketcher.Constraint("Vertical", 2),
    Sketcher.Constraint("Horizontal", 4),
    Sketcher.Constraint("Vertical", 5),
    Sketcher.Constraint("Horizontal", 6),
    Sketcher.Constraint("Vertical", 7),
    Sketcher.Constraint("Horizontal", 9),
    Sketcher.Constraint("Horizontal", 12),
    Sketcher.Constraint("Vertical", 14),
    Sketcher.Constraint("Horizontal", 15),
    Sketcher.Constraint("Vertical", 16),
    Sketcher.Constraint("Horizontal", 17),
    Sketcher.Constraint("Vertical", 19),
    Sketcher.Constraint("Horizontal", 20),
    Sketcher.Constraint("Vertical", 21),
    Sketcher.Constraint("Horizontal", 22),
    Sketcher.Constraint("Vertical", 24),
    Sketcher.Constraint("Vertical", 27),
    Sketcher.Constraint("Horizontal", 29),
    Sketcher.Constraint("Vertical", 30),
    Sketcher.Constraint("Horizontal", 31),
    Sketcher.Constraint("Vertical", 32),
    Sketcher.Constraint("Horizontal", 34),
    Sketcher.Constraint("Vertical", 35),
    Sketcher.Constraint("Horizontal", 36),
    Sketcher.Constraint("Vertical", 37),
    Sketcher.Constraint("Horizontal", 39),
    Sketcher.Constraint("Horizontal", 42),
    Sketcher.Constraint("Vertical", 44),
    Sketcher.Constraint("Horizontal", 45),
    Sketcher.Constraint("Vertical", 46),
    Sketcher.Constraint("Horizontal", 47),
    Sketcher.Constraint("Vertical", 49),
    Sketcher.Constraint("Horizontal", 50),
    Sketcher.Constraint("Vertical", 51),
    Sketcher.Constraint("Horizontal", 52),
    Sketcher.Constraint("Vertical", 54),
    Sketcher.Constraint("Vertical", 57),
    Sketcher.Constraint("Horizontal", 59),
    Sketcher.Constraint("Coincident", 60, 3, -1, 1),
    Sketcher.Constraint("Equal", 3, 18),
    Sketcher.Constraint("Equal", 18, 33),
    Sketcher.Constraint("Equal", 33, 48),
    Sketcher.Constraint("Symmetric", 3, 3, 33, 3, -1, 1),
    Sketcher.Constraint("Symmetric", 18, 3, 48, 3, -1, 1),
    Sketcher.Constraint("Symmetric", 0, 2, 30, 2, -1, 1),
    Sketcher.Constraint("Symmetric", 5, 2, 35, 2, -1, 1),
    Sketcher.Constraint("Symmetric", 7, 2, 37, 2, -1, 1),
    Sketcher.Constraint("Symmetric", 8, 2, 38, 2, -1, 1),
    Sketcher.Constraint("Symmetric", 10, 2, 40, 2, -1, 1),
    Sketcher.Constraint("Symmetric", 11, 2, 41, 2, -1, 1),
    Sketcher.Constraint("Symmetric", 13, 2, 43, 2, -1, 1),
    Sketcher.Constraint("Symmetric", 15, 2, 45, 2, -1, 1),
    Sketcher.Constraint("Symmetric", 20, 2, 50, 2, -1, 1),
    Sketcher.Constraint("Symmetric", 22, 2, 52, 2, -1, 1),
    Sketcher.Constraint("Symmetric", 23, 2, 53, 2, -1, 1),
    Sketcher.Constraint("Symmetric", 25, 2, 55, 2, -1, 1),
    Sketcher.Constraint("Symmetric", 26, 2, 56, 2, -1, 1),
    Sketcher.Constraint("Symmetric", 28, 2, 58, 2, -1, 1),
    Sketcher.Constraint("Symmetric", 3, 3, 18, 3, -2),
    Sketcher.Constraint("Symmetric", 9, 2, 11, 2, -2),
    Sketcher.Constraint("Symmetric", 7, 2, 13, 2, -2),
    Sketcher.Constraint("Symmetric", 5, 2, 15, 2, -2),
    Sketcher.Constraint("Symmetric", 0, 2, 20, 2, -2),
    Sketcher.Constraint("Symmetric", 28, 2, 52, 2, -2),
    Sketcher.Constraint("Symmetric", 27, 2, 53, 2, -2),
    Sketcher.Constraint("PointOnObject", 10, 2, -2),
    Sketcher.Constraint("PointOnObject", 25, 2, -1),
    Sketcher.Constraint("Perpendicular", 8, 13),
    Sketcher.Constraint("Parallel", 13, 23),
    Sketcher.Constraint("Perpendicular", 10, 25),
    Sketcher.Constraint("Perpendicular", 11, 26),
    Sketcher.Constraint("Perpendicular", 23, 28),
    Sketcher.Constraint("Perpendicular", 25, 40),
    Sketcher.Constraint("Perpendicular", 38, 43),
    Sketcher.Constraint("Perpendicular", 40, 55),
    Sketcher.Constraint("Perpendicular", 53, 58),
    Sketcher.Constraint("Equal", 45, 0),
    Sketcher.Constraint("Equal", 47, 2),
    Sketcher.Constraint("Equal", 50, 5),
    Sketcher.Constraint("Equal", 59, 7),
    Sketcher.Constraint("Equal", 42, 24),
    Sketcher.Constraint("Equal", 13, 23),
    Sketcher.Constraint("Equal", 11, 25),
    Sketcher.Constraint("Radius", 3, 1.0),
    Sketcher.Constraint("Diameter", 60, 4.2),
    Sketcher.Constraint("DistanceX", 1, 2, 1, 1, 2.0),
    Sketcher.Constraint("DistanceX", 4, 1, 4, 2, 6.0),
    Sketcher.Constraint("DistanceX", 6, 2, 6, 1, 3.0),
    Sketcher.Constraint("Angle", 10, Q("30.000012 deg")),
    Sketcher.Constraint("DistanceX", 3, 3, -1, 1, 9.0),
    Sketcher.Constraint("DistanceY", 8, 2, -1, 1, 4.0),
    Sketcher.Constraint("Distance", 10, 0.6),
    Sketcher.Constraint("DistanceX", 22, 2, 22, 1, 0.93934),
])
pad7 = body7.newObject("PartDesign::Pad", "Pad006")
pad7.Profile = sketch8
pad7.Length = 190
body8 = doc.addObject("PartDesign::Body", "Body007")

sketch9 = body8.newObject("Sketcher::SketchObject", "Sketch008")
sketch9.AttachmentSupport = (doc.getObject("XY_Plane007"), [""])
sketch9.MapMode = "FlatFace"
sketch9.addGeometry([
    Part.LineSegment(V(-8, -6, 0), V(-8, -3, 0)),
    Part.LineSegment(V(-8, -3, 0), V(-10, -3, 0)),
    Part.LineSegment(V(-10, -3, 0), V(-10, -9, 0)),
    Part.ArcOfCircle(Part.Circle(V(-9, -9, 0), V(0, 0, 1), 1), math.radians(180), math.radians(270)),
    Part.LineSegment(V(-9, -10, 0), V(-3, -10, 0)),
    Part.LineSegment(V(-3, -10, 0), V(-3, -8, 0)),
    Part.LineSegment(V(-3, -8, 0), V(-6, -8, 0)),
    Part.LineSegment(V(-6, -8, 0), V(-6, -7.06066, 0)),
    Part.LineSegment(V(-6, -7.06066, 0), V(-2.93934, -4, 0)),
    Part.LineSegment(V(-2.93934, -4, 0), V(-0.519615, -4, 0)),
    Part.LineSegment(V(-0.519615, -4, 0), V(0, -3.7, 0)),
    Part.LineSegment(V(0, -3.7, 0), V(0.519615, -4, 0)),
    Part.LineSegment(V(0.519615, -4, 0), V(2.93934, -4, 0)),
    Part.LineSegment(V(2.93934, -4, 0), V(6, -7.06066, 0)),
    Part.LineSegment(V(6, -7.06066, 0), V(6, -8, 0)),
    Part.LineSegment(V(6, -8, 0), V(3, -8, 0)),
    Part.LineSegment(V(3, -8, 0), V(3, -10, 0)),
    Part.LineSegment(V(3, -10, 0), V(9, -10, 0)),
    Part.ArcOfCircle(Part.Circle(V(9, -9, 0), V(0, 0, 1), 1), math.radians(-90), math.radians(0)),
    Part.LineSegment(V(10, -9, 0), V(10, -3, 0)),
    Part.LineSegment(V(10, -3, 0), V(8, -3, 0)),
    Part.LineSegment(V(8, -3, 0), V(8, -6, 0)),
    Part.LineSegment(V(8, -6, 0), V(7.06066, -6, 0)),
    Part.LineSegment(V(7.06066, -6, 0), V(4, -2.93934, 0)),
    Part.LineSegment(V(4, -2.93934, 0), V(4, -0.519615, 0)),
    Part.LineSegment(V(4, -0.519615, 0), V(3.7, 0, 0)),
    Part.LineSegment(V(3.7, 0, 0), V(4, 0.519615, 0)),
    Part.LineSegment(V(4, 0.519615, 0), V(4, 2.93934, 0)),
    Part.LineSegment(V(4, 2.93934, 0), V(7.06066, 6, 0)),
    Part.LineSegment(V(7.06066, 6, 0), V(8, 6, 0)),
    Part.LineSegment(V(8, 6, 0), V(8, 3, 0)),
    Part.LineSegment(V(8, 3, 0), V(10, 3, 0)),
    Part.LineSegment(V(10, 3, 0), V(10, 9, 0)),
    Part.ArcOfCircle(Part.Circle(V(9, 9, 0), V(0, 0, 1), 1), math.radians(0), math.radians(90)),
    Part.LineSegment(V(9, 10, 0), V(3, 10, 0)),
    Part.LineSegment(V(3, 10, 0), V(3, 8, 0)),
    Part.LineSegment(V(3, 8, 0), V(6, 8, 0)),
    Part.LineSegment(V(6, 8, 0), V(6, 7.06066, 0)),
    Part.LineSegment(V(6, 7.06066, 0), V(2.93934, 4, 0)),
    Part.LineSegment(V(2.93934, 4, 0), V(0.519615, 4, 0)),
    Part.LineSegment(V(0.519615, 4, 0), V(0, 3.7, 0)),
    Part.LineSegment(V(0, 3.7, 0), V(-0.519615, 4, 0)),
    Part.LineSegment(V(-0.519615, 4, 0), V(-2.93934, 4, 0)),
    Part.LineSegment(V(-2.93934, 4, 0), V(-6, 7.06066, 0)),
    Part.LineSegment(V(-6, 7.06066, 0), V(-6, 8, 0)),
    Part.LineSegment(V(-6, 8, 0), V(-3, 8, 0)),
    Part.LineSegment(V(-3, 8, 0), V(-3, 10, 0)),
    Part.LineSegment(V(-3, 10, 0), V(-9, 10, 0)),
    Part.ArcOfCircle(Part.Circle(V(-9, 9, 0), V(0, 0, 1), 1), math.radians(90), math.radians(180)),
    Part.LineSegment(V(-10, 9, 0), V(-10, 3, 0)),
    Part.LineSegment(V(-10, 3, 0), V(-8, 3, 0)),
    Part.LineSegment(V(-8, 3, 0), V(-8, 6, 0)),
    Part.LineSegment(V(-8, 6, 0), V(-7.06066, 6, 0)),
    Part.LineSegment(V(-7.06066, 6, 0), V(-4, 2.93934, 0)),
    Part.LineSegment(V(-4, 2.93934, 0), V(-4, 0.519615, 0)),
    Part.LineSegment(V(-4, 0.519615, 0), V(-3.7, 0, 0)),
    Part.LineSegment(V(-3.7, 0, 0), V(-4, -0.519615, 0)),
    Part.LineSegment(V(-4, -0.519615, 0), V(-4, -2.93934, 0)),
    Part.LineSegment(V(-4, -2.93934, 0), V(-7.06066, -6, 0)),
    Part.LineSegment(V(-7.06066, -6, 0), V(-8, -6, 0)),
    Part.Circle(V(0, 0, 0), V(0, 0, 1), 2.1),
], False)
sketch9.addConstraint([
    Sketcher.Constraint("Coincident", 0, 2, 1, 1),
    Sketcher.Constraint("Coincident", 1, 2, 2, 1),
    Sketcher.Constraint("Tangent", 2, 2, 3, 1),
    Sketcher.Constraint("Tangent", 3, 2, 4, 1),
    Sketcher.Constraint("Coincident", 4, 2, 5, 1),
    Sketcher.Constraint("Coincident", 5, 2, 6, 1),
    Sketcher.Constraint("Coincident", 6, 2, 7, 1),
    Sketcher.Constraint("Coincident", 7, 2, 8, 1),
    Sketcher.Constraint("Coincident", 8, 2, 9, 1),
    Sketcher.Constraint("Coincident", 9, 2, 10, 1),
    Sketcher.Constraint("Coincident", 10, 2, 11, 1),
    Sketcher.Constraint("Coincident", 11, 2, 12, 1),
    Sketcher.Constraint("Coincident", 12, 2, 13, 1),
    Sketcher.Constraint("Coincident", 13, 2, 14, 1),
    Sketcher.Constraint("Coincident", 14, 2, 15, 1),
    Sketcher.Constraint("Coincident", 15, 2, 16, 1),
    Sketcher.Constraint("Coincident", 16, 2, 17, 1),
    Sketcher.Constraint("Tangent", 17, 2, 18, 1),
    Sketcher.Constraint("Tangent", 18, 2, 19, 1),
    Sketcher.Constraint("Coincident", 19, 2, 20, 1),
    Sketcher.Constraint("Coincident", 20, 2, 21, 1),
    Sketcher.Constraint("Coincident", 21, 2, 22, 1),
    Sketcher.Constraint("Coincident", 22, 2, 23, 1),
    Sketcher.Constraint("Coincident", 23, 2, 24, 1),
    Sketcher.Constraint("Coincident", 24, 2, 25, 1),
    Sketcher.Constraint("Coincident", 25, 2, 26, 1),
    Sketcher.Constraint("Coincident", 26, 2, 27, 1),
    Sketcher.Constraint("Coincident", 27, 2, 28, 1),
    Sketcher.Constraint("Coincident", 28, 2, 29, 1),
    Sketcher.Constraint("Coincident", 29, 2, 30, 1),
    Sketcher.Constraint("Coincident", 30, 2, 31, 1),
    Sketcher.Constraint("Coincident", 31, 2, 32, 1),
    Sketcher.Constraint("Tangent", 32, 2, 33, 1),
    Sketcher.Constraint("Tangent", 33, 2, 34, 1),
    Sketcher.Constraint("Coincident", 34, 2, 35, 1),
    Sketcher.Constraint("Coincident", 35, 2, 36, 1),
    Sketcher.Constraint("Coincident", 36, 2, 37, 1),
    Sketcher.Constraint("Coincident", 37, 2, 38, 1),
    Sketcher.Constraint("Coincident", 38, 2, 39, 1),
    Sketcher.Constraint("Coincident", 39, 2, 40, 1),
    Sketcher.Constraint("Coincident", 40, 2, 41, 1),
    Sketcher.Constraint("Coincident", 41, 2, 42, 1),
    Sketcher.Constraint("Coincident", 42, 2, 43, 1),
    Sketcher.Constraint("Coincident", 43, 2, 44, 1),
    Sketcher.Constraint("Coincident", 44, 2, 45, 1),
    Sketcher.Constraint("Coincident", 45, 2, 46, 1),
    Sketcher.Constraint("Coincident", 46, 2, 47, 1),
    Sketcher.Constraint("Tangent", 47, 2, 48, 1),
    Sketcher.Constraint("Tangent", 48, 2, 49, 1),
    Sketcher.Constraint("Coincident", 49, 2, 50, 1),
    Sketcher.Constraint("Coincident", 50, 2, 51, 1),
    Sketcher.Constraint("Coincident", 51, 2, 52, 1),
    Sketcher.Constraint("Coincident", 52, 2, 53, 1),
    Sketcher.Constraint("Coincident", 53, 2, 54, 1),
    Sketcher.Constraint("Coincident", 54, 2, 55, 1),
    Sketcher.Constraint("Coincident", 55, 2, 56, 1),
    Sketcher.Constraint("Coincident", 56, 2, 57, 1),
    Sketcher.Constraint("Coincident", 57, 2, 58, 1),
    Sketcher.Constraint("Coincident", 58, 2, 59, 1),
    Sketcher.Constraint("Coincident", 59, 2, 0, 1),
    Sketcher.Constraint("Vertical", 0),
    Sketcher.Constraint("Horizontal", 1),
    Sketcher.Constraint("Vertical", 2),
    Sketcher.Constraint("Horizontal", 4),
    Sketcher.Constraint("Vertical", 5),
    Sketcher.Constraint("Horizontal", 6),
    Sketcher.Constraint("Vertical", 7),
    Sketcher.Constraint("Horizontal", 9),
    Sketcher.Constraint("Horizontal", 12),
    Sketcher.Constraint("Vertical", 14),
    Sketcher.Constraint("Horizontal", 15),
    Sketcher.Constraint("Vertical", 16),
    Sketcher.Constraint("Horizontal", 17),
    Sketcher.Constraint("Vertical", 19),
    Sketcher.Constraint("Horizontal", 20),
    Sketcher.Constraint("Vertical", 21),
    Sketcher.Constraint("Horizontal", 22),
    Sketcher.Constraint("Vertical", 24),
    Sketcher.Constraint("Vertical", 27),
    Sketcher.Constraint("Horizontal", 29),
    Sketcher.Constraint("Vertical", 30),
    Sketcher.Constraint("Horizontal", 31),
    Sketcher.Constraint("Vertical", 32),
    Sketcher.Constraint("Horizontal", 34),
    Sketcher.Constraint("Vertical", 35),
    Sketcher.Constraint("Horizontal", 36),
    Sketcher.Constraint("Vertical", 37),
    Sketcher.Constraint("Horizontal", 39),
    Sketcher.Constraint("Horizontal", 42),
    Sketcher.Constraint("Vertical", 44),
    Sketcher.Constraint("Horizontal", 45),
    Sketcher.Constraint("Vertical", 46),
    Sketcher.Constraint("Horizontal", 47),
    Sketcher.Constraint("Vertical", 49),
    Sketcher.Constraint("Horizontal", 50),
    Sketcher.Constraint("Vertical", 51),
    Sketcher.Constraint("Horizontal", 52),
    Sketcher.Constraint("Vertical", 54),
    Sketcher.Constraint("Vertical", 57),
    Sketcher.Constraint("Horizontal", 59),
    Sketcher.Constraint("Coincident", 60, 3, -1, 1),
    Sketcher.Constraint("Equal", 3, 18),
    Sketcher.Constraint("Equal", 18, 33),
    Sketcher.Constraint("Equal", 33, 48),
    Sketcher.Constraint("Symmetric", 3, 3, 33, 3, -1, 1),
    Sketcher.Constraint("Symmetric", 18, 3, 48, 3, -1, 1),
    Sketcher.Constraint("Symmetric", 0, 2, 30, 2, -1, 1),
    Sketcher.Constraint("Symmetric", 5, 2, 35, 2, -1, 1),
    Sketcher.Constraint("Symmetric", 7, 2, 37, 2, -1, 1),
    Sketcher.Constraint("Symmetric", 8, 2, 38, 2, -1, 1),
    Sketcher.Constraint("Symmetric", 10, 2, 40, 2, -1, 1),
    Sketcher.Constraint("Symmetric", 11, 2, 41, 2, -1, 1),
    Sketcher.Constraint("Symmetric", 13, 2, 43, 2, -1, 1),
    Sketcher.Constraint("Symmetric", 15, 2, 45, 2, -1, 1),
    Sketcher.Constraint("Symmetric", 20, 2, 50, 2, -1, 1),
    Sketcher.Constraint("Symmetric", 22, 2, 52, 2, -1, 1),
    Sketcher.Constraint("Symmetric", 23, 2, 53, 2, -1, 1),
    Sketcher.Constraint("Symmetric", 25, 2, 55, 2, -1, 1),
    Sketcher.Constraint("Symmetric", 26, 2, 56, 2, -1, 1),
    Sketcher.Constraint("Symmetric", 28, 2, 58, 2, -1, 1),
    Sketcher.Constraint("Symmetric", 3, 3, 18, 3, -2),
    Sketcher.Constraint("Symmetric", 9, 2, 11, 2, -2),
    Sketcher.Constraint("Symmetric", 7, 2, 13, 2, -2),
    Sketcher.Constraint("Symmetric", 5, 2, 15, 2, -2),
    Sketcher.Constraint("Symmetric", 0, 2, 20, 2, -2),
    Sketcher.Constraint("Symmetric", 28, 2, 52, 2, -2),
    Sketcher.Constraint("Symmetric", 27, 2, 53, 2, -2),
    Sketcher.Constraint("PointOnObject", 10, 2, -2),
    Sketcher.Constraint("PointOnObject", 25, 2, -1),
    Sketcher.Constraint("Perpendicular", 8, 13),
    Sketcher.Constraint("Parallel", 13, 23),
    Sketcher.Constraint("Perpendicular", 10, 25),
    Sketcher.Constraint("Perpendicular", 11, 26),
    Sketcher.Constraint("Perpendicular", 23, 28),
    Sketcher.Constraint("Perpendicular", 25, 40),
    Sketcher.Constraint("Perpendicular", 38, 43),
    Sketcher.Constraint("Perpendicular", 40, 55),
    Sketcher.Constraint("Perpendicular", 53, 58),
    Sketcher.Constraint("Equal", 45, 0),
    Sketcher.Constraint("Equal", 47, 2),
    Sketcher.Constraint("Equal", 50, 5),
    Sketcher.Constraint("Equal", 59, 7),
    Sketcher.Constraint("Equal", 42, 24),
    Sketcher.Constraint("Equal", 13, 23),
    Sketcher.Constraint("Equal", 11, 25),
    Sketcher.Constraint("Radius", 3, 1.0),
    Sketcher.Constraint("Diameter", 60, 4.2),
    Sketcher.Constraint("DistanceX", 1, 2, 1, 1, 2.0),
    Sketcher.Constraint("DistanceX", 4, 1, 4, 2, 6.0),
    Sketcher.Constraint("DistanceX", 6, 2, 6, 1, 3.0),
    Sketcher.Constraint("Angle", 10, Q("30.000012 deg")),
    Sketcher.Constraint("DistanceX", 3, 3, -1, 1, 9.0),
    Sketcher.Constraint("DistanceY", 8, 2, -1, 1, 4.0),
    Sketcher.Constraint("Distance", 10, 0.6),
    Sketcher.Constraint("DistanceX", 22, 2, 22, 1, 0.93934),
])
pad8 = body8.newObject("PartDesign::Pad", "Pad007")
pad8.Profile = sketch9
pad8.Length = 170

doc.recompute()
